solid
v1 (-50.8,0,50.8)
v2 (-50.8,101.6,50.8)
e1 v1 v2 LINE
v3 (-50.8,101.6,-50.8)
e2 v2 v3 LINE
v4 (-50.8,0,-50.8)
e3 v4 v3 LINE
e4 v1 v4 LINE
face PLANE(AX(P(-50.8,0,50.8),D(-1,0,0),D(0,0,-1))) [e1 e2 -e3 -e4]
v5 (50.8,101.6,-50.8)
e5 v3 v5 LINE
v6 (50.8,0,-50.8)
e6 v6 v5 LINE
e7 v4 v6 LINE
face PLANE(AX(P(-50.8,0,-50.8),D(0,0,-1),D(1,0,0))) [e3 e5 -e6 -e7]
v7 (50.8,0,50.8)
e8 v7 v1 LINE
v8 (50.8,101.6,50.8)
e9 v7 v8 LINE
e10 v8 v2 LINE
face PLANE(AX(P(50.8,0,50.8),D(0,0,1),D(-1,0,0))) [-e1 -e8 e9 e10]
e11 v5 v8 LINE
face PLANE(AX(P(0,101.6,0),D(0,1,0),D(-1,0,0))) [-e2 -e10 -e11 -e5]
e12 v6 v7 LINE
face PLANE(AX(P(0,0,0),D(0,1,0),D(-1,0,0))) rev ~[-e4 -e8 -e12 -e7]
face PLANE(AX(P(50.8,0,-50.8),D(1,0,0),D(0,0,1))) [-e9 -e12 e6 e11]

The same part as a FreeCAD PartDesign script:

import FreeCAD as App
import Part
import Sketcher
Q = App.Units.Quantity


def add_polygon(sketch, points):
    """Adds a closed chain of lines whose ends are joined by coincident constraints."""
    first, n = sketch.GeometryCount, len(points)
    for a, b in zip(points, points[1:] + points[:1]):
        sketch.addGeometry(Part.LineSegment(App.Vector(*a, 0), App.Vector(*b, 0)), False)
    for i in range(n):
        sketch.addConstraint(Sketcher.Constraint("Coincident", first + i, 2, first + (i + 1) % n, 1))

doc = App.newDocument("Part")
params = doc.addObject("Spreadsheet::Sheet", "Params")
for row, (alias, value) in enumerate([
    ("sketch1_width", "4 in"),
    ("pad1_length", "4 in"),
], start=1):
    params.set(f"A{row}", alias)
    params.set(f"B{row}", "=" + value)
    params.setAlias(f"B{row}", alias)

body = doc.addObject("PartDesign::Body", "Body")

sketch1 = doc.addObject("Sketcher::SketchObject", "Sketch")
body.addObject(sketch1)
sketch1.AttachmentSupport = (doc.XZ_Plane, [""])
sketch1.MapMode = "FlatFace"
add_polygon(sketch1, [(-51, 51), (51, 51), (51, -51), (-51, -51)])
sketch1.addConstraint([
    Sketcher.Constraint("Horizontal", 0),
    Sketcher.Constraint("Vertical", 1),
    Sketcher.Constraint("Horizontal", 2),
    Sketcher.Constraint("Vertical", 3),
    Sketcher.Constraint("Symmetric", 0, 2, 2, 2, -1, 1),
    Sketcher.Constraint("Equal", 2, 1),
    Sketcher.Constraint("DistanceX", 0, 1, 0, 2, Q("4 in")),
])
sketch1.setExpression("Constraints[10]", "Params.sketch1_width")
pad1 = doc.addObject("PartDesign::Pad", "Pad")
body.addObject(pad1)
pad1.Profile = sketch1
pad1.setExpression("Length", "Params.pad1_length")
pad1.Reversed = True

doc.recompute()
